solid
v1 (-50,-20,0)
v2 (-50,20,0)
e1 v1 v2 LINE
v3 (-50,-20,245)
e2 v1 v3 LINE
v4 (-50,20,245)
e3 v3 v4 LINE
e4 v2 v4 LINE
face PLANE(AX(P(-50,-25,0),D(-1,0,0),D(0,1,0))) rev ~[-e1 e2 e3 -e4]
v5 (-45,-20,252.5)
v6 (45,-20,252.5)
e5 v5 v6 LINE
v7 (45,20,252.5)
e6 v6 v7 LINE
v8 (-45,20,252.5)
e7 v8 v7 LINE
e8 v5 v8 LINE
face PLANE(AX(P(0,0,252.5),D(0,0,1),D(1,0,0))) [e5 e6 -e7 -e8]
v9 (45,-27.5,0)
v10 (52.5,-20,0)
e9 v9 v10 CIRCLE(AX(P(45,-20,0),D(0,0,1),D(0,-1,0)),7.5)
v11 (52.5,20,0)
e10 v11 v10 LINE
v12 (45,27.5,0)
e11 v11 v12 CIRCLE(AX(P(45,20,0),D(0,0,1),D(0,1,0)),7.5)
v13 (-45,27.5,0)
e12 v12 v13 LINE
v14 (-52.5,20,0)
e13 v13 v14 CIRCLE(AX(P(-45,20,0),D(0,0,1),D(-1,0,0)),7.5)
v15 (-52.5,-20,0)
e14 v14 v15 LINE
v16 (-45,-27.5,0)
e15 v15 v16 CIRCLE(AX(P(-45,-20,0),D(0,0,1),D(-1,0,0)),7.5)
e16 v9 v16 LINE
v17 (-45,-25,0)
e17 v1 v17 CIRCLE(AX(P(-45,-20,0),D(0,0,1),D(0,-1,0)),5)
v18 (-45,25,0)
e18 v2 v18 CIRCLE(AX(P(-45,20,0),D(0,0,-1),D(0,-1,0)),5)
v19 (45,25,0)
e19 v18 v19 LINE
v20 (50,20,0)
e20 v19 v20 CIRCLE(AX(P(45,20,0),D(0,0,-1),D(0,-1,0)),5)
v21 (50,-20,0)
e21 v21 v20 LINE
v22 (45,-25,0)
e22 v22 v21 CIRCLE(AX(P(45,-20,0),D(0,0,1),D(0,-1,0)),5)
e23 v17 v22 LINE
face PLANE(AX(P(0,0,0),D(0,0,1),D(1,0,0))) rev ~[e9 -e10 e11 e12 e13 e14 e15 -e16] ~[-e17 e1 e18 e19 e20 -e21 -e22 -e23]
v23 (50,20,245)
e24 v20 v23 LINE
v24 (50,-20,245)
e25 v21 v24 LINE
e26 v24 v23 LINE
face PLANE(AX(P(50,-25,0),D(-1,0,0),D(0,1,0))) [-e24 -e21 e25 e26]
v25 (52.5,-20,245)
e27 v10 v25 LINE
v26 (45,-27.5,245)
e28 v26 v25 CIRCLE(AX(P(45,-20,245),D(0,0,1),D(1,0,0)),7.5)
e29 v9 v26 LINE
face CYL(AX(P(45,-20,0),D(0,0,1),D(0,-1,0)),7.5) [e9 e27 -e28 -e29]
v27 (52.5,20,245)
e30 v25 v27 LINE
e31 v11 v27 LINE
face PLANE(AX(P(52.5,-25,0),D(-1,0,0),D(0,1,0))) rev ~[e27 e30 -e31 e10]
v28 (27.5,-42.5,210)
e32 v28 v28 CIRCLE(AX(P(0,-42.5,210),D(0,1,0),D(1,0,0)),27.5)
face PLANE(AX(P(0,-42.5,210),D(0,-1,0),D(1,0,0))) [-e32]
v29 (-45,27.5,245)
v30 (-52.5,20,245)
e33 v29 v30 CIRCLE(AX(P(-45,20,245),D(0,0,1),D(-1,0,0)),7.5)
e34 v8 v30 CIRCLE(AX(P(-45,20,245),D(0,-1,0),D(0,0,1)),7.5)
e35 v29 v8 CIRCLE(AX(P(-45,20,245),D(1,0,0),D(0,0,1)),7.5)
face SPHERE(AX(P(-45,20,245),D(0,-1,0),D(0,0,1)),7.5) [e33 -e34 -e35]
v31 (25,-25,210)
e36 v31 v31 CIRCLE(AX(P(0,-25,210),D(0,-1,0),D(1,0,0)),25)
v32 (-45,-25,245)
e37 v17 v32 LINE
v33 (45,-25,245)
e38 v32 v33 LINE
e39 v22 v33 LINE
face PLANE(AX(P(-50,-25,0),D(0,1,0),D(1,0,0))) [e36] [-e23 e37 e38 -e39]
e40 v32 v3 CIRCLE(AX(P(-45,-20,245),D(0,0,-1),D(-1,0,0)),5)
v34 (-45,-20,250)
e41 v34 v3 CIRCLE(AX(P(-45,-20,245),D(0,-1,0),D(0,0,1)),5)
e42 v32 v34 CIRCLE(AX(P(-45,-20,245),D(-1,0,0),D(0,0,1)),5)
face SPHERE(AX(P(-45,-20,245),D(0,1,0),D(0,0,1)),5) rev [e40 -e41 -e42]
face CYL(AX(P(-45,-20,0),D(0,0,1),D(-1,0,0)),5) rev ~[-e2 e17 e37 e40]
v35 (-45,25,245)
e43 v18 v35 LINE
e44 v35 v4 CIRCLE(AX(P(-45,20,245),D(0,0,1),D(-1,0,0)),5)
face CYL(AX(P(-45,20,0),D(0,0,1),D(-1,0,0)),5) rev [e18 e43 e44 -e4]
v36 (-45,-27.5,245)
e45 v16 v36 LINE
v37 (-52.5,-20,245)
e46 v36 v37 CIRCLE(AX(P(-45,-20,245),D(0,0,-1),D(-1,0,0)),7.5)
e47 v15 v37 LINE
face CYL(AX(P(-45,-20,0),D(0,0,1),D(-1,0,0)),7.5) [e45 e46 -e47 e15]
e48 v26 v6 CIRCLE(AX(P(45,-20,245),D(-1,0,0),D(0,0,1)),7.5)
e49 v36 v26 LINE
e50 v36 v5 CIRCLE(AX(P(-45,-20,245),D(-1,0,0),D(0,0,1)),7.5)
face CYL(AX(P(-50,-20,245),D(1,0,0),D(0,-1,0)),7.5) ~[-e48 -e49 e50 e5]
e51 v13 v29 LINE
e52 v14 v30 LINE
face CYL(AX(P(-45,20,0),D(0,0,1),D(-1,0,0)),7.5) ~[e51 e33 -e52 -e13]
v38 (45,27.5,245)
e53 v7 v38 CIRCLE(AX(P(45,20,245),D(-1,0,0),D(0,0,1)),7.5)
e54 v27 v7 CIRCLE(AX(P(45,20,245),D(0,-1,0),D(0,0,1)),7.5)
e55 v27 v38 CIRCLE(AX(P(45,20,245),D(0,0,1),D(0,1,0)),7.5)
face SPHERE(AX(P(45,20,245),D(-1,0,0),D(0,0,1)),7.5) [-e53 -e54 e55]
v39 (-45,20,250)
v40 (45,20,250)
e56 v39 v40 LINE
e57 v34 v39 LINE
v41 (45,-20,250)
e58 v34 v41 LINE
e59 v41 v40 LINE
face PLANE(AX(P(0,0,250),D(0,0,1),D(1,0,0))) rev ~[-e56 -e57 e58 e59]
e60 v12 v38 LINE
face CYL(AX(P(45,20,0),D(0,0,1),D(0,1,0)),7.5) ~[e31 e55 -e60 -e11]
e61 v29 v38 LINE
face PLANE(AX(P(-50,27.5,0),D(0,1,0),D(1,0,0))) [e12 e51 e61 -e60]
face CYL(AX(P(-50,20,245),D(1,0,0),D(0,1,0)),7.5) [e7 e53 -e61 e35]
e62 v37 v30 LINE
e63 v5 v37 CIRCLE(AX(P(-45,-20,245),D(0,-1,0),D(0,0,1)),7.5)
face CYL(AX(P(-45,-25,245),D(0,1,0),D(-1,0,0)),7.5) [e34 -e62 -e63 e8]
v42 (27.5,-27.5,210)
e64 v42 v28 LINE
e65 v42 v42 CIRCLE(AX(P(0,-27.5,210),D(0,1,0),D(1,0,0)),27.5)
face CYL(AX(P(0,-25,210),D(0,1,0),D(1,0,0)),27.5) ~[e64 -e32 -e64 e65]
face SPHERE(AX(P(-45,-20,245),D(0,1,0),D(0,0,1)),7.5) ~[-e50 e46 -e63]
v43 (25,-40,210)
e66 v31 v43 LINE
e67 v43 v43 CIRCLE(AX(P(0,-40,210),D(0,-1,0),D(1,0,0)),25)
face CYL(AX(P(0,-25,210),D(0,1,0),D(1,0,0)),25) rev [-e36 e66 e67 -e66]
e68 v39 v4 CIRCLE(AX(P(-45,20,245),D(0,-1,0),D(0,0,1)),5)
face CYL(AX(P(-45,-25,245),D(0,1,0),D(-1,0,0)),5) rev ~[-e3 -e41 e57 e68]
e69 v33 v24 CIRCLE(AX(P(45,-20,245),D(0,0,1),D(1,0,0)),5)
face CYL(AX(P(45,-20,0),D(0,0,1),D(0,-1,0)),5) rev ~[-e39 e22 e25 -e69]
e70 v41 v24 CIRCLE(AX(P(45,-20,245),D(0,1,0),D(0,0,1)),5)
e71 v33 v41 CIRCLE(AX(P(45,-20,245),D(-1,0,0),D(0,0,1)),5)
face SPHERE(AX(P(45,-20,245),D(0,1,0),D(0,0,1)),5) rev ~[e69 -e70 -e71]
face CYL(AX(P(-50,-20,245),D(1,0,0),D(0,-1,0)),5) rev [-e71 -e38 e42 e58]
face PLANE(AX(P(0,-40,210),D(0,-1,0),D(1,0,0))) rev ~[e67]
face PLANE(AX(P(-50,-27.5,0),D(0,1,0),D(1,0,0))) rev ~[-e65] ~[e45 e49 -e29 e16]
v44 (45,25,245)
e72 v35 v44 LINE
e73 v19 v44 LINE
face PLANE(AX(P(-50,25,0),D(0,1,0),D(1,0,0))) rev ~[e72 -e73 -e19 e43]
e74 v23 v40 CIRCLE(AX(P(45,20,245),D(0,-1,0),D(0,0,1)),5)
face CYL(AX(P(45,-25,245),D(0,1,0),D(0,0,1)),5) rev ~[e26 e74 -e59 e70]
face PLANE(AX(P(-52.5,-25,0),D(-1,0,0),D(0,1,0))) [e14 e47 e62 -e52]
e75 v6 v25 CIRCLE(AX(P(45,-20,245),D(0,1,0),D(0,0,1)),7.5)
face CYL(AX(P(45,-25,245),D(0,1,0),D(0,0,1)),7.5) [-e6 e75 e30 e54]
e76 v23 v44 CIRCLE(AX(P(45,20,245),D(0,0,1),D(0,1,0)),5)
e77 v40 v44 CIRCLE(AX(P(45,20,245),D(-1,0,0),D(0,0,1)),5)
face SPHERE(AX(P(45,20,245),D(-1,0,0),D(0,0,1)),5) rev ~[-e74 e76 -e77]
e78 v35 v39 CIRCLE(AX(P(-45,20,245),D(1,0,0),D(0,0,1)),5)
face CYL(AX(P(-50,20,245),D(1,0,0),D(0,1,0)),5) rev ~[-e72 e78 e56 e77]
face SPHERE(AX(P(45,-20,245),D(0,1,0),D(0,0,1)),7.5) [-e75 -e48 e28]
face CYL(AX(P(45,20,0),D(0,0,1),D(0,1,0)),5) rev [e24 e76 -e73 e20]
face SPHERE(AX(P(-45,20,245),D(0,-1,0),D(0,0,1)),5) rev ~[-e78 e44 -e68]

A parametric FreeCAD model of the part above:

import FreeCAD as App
import Part
import Sketcher

V = App.Vector


def edges_at(feature, points):
    """Names of the edges that pass closest to the given points."""
    edges = feature.Shape.Edges
    near = lambda p: min(range(len(edges)), key=lambda i: edges[i].distToShape(Part.Vertex(*p))[0])
    return sorted({f"Edge{near(p) + 1}" for p in points})


def faces_at(feature, points):
    """Names of the faces that lie closest to the given points."""
    faces = feature.Shape.Faces
    near = lambda p: min(range(len(faces)), key=lambda i: faces[i].distToShape(Part.Vertex(*p))[0])
    return sorted({f"Face{near(p) + 1}" for p in points})

doc = App.newDocument("Part")
body = doc.addObject("PartDesign::Body", "Body")

# Sketch on XY plane
sketch1 = body.newObject("Sketcher::SketchObject", "Sketch")
sketch1.AttachmentSupport = (doc.getObject("XY_Plane"), [""])
sketch1.MapMode = "FlatFace"
sketch1.addGeometry([
    Part.LineSegment(V(-50, 25, 0), V(-50, -25, 0)),
    Part.LineSegment(V(-50, -25, 0), V(50, -25, 0)),
    Part.LineSegment(V(50, -25, 0), V(50, 25, 0)),
    Part.LineSegment(V(50, 25, 0), V(-50, 25, 0)),
], False)
sketch1.addConstraint([
    Sketcher.Constraint("Coincident", 0, 2, 1, 1),
    Sketcher.Constraint("Coincident", 1, 2, 2, 1),
    Sketcher.Constraint("Coincident", 2, 2, 3, 1),
    Sketcher.Constraint("Coincident", 3, 2, 0, 1),
    Sketcher.Constraint("Vertical", 0),
    Sketcher.Constraint("Horizontal", 1),
    Sketcher.Constraint("Vertical", 2),
    Sketcher.Constraint("Horizontal", 3),
    Sketcher.Constraint("Symmetric", 0, 2, 2, 2, -1, 1),
    Sketcher.Constraint("DistanceX", 1, 1, 1, 2, 100.0),
    Sketcher.Constraint("DistanceY", 0, 2, 0, 1, 50.0),
])
pad1 = body.newObject("PartDesign::Pad", "Pad")
pad1.Profile = sketch1
pad1.Length = 250

# Sketch on XZ plane
sketch2 = body.newObject("Sketcher::SketchObject", "Sketch001")
sketch2.AttachmentSupport = (doc.getObject("XZ_Plane"), [""])
sketch2.MapMode = "FlatFace"
sketch2.AttachmentOffset = App.Placement(V(0, 0, 25), App.Rotation())
sketch2.addGeometry(Part.Circle(V(0, 210, 0), V(0, 0, 1), 25), False)
sketch2.addConstraint([
    Sketcher.Constraint("PointOnObject", 0, 3, -2),
    Sketcher.Constraint("Diameter", 0, 50.0),
    Sketcher.Constraint("DistanceY", -1, 1, 0, 3, 210.0),
])
pad2 = body.newObject("PartDesign::Pad", "Pad001")
pad2.Profile = sketch2
pad2.Length = 15
doc.recompute()

fillet = body.newObject("PartDesign::Fillet", "Fillet")
fillet.Base = (pad2, edges_at(pad2, [
    (-50, 0, 250),
    (0, 25, 250),
    (50, 0, 250),
    (0, -25, 250),
    (50, -25, 125),
    (50, 25, 125),
    (-50, -25, 125),
    (-50, 25, 125),
]))
fillet.Radius = 5
doc.recompute()

thickness = body.newObject("PartDesign::Thickness", "Thickness")
thickness.Base = (fillet, faces_at(fillet, [(0, 0, 0)]))
thickness.Value = 2.5
thickness.Reversed = False
thickness.Join = "Intersection"

doc.recompute()
